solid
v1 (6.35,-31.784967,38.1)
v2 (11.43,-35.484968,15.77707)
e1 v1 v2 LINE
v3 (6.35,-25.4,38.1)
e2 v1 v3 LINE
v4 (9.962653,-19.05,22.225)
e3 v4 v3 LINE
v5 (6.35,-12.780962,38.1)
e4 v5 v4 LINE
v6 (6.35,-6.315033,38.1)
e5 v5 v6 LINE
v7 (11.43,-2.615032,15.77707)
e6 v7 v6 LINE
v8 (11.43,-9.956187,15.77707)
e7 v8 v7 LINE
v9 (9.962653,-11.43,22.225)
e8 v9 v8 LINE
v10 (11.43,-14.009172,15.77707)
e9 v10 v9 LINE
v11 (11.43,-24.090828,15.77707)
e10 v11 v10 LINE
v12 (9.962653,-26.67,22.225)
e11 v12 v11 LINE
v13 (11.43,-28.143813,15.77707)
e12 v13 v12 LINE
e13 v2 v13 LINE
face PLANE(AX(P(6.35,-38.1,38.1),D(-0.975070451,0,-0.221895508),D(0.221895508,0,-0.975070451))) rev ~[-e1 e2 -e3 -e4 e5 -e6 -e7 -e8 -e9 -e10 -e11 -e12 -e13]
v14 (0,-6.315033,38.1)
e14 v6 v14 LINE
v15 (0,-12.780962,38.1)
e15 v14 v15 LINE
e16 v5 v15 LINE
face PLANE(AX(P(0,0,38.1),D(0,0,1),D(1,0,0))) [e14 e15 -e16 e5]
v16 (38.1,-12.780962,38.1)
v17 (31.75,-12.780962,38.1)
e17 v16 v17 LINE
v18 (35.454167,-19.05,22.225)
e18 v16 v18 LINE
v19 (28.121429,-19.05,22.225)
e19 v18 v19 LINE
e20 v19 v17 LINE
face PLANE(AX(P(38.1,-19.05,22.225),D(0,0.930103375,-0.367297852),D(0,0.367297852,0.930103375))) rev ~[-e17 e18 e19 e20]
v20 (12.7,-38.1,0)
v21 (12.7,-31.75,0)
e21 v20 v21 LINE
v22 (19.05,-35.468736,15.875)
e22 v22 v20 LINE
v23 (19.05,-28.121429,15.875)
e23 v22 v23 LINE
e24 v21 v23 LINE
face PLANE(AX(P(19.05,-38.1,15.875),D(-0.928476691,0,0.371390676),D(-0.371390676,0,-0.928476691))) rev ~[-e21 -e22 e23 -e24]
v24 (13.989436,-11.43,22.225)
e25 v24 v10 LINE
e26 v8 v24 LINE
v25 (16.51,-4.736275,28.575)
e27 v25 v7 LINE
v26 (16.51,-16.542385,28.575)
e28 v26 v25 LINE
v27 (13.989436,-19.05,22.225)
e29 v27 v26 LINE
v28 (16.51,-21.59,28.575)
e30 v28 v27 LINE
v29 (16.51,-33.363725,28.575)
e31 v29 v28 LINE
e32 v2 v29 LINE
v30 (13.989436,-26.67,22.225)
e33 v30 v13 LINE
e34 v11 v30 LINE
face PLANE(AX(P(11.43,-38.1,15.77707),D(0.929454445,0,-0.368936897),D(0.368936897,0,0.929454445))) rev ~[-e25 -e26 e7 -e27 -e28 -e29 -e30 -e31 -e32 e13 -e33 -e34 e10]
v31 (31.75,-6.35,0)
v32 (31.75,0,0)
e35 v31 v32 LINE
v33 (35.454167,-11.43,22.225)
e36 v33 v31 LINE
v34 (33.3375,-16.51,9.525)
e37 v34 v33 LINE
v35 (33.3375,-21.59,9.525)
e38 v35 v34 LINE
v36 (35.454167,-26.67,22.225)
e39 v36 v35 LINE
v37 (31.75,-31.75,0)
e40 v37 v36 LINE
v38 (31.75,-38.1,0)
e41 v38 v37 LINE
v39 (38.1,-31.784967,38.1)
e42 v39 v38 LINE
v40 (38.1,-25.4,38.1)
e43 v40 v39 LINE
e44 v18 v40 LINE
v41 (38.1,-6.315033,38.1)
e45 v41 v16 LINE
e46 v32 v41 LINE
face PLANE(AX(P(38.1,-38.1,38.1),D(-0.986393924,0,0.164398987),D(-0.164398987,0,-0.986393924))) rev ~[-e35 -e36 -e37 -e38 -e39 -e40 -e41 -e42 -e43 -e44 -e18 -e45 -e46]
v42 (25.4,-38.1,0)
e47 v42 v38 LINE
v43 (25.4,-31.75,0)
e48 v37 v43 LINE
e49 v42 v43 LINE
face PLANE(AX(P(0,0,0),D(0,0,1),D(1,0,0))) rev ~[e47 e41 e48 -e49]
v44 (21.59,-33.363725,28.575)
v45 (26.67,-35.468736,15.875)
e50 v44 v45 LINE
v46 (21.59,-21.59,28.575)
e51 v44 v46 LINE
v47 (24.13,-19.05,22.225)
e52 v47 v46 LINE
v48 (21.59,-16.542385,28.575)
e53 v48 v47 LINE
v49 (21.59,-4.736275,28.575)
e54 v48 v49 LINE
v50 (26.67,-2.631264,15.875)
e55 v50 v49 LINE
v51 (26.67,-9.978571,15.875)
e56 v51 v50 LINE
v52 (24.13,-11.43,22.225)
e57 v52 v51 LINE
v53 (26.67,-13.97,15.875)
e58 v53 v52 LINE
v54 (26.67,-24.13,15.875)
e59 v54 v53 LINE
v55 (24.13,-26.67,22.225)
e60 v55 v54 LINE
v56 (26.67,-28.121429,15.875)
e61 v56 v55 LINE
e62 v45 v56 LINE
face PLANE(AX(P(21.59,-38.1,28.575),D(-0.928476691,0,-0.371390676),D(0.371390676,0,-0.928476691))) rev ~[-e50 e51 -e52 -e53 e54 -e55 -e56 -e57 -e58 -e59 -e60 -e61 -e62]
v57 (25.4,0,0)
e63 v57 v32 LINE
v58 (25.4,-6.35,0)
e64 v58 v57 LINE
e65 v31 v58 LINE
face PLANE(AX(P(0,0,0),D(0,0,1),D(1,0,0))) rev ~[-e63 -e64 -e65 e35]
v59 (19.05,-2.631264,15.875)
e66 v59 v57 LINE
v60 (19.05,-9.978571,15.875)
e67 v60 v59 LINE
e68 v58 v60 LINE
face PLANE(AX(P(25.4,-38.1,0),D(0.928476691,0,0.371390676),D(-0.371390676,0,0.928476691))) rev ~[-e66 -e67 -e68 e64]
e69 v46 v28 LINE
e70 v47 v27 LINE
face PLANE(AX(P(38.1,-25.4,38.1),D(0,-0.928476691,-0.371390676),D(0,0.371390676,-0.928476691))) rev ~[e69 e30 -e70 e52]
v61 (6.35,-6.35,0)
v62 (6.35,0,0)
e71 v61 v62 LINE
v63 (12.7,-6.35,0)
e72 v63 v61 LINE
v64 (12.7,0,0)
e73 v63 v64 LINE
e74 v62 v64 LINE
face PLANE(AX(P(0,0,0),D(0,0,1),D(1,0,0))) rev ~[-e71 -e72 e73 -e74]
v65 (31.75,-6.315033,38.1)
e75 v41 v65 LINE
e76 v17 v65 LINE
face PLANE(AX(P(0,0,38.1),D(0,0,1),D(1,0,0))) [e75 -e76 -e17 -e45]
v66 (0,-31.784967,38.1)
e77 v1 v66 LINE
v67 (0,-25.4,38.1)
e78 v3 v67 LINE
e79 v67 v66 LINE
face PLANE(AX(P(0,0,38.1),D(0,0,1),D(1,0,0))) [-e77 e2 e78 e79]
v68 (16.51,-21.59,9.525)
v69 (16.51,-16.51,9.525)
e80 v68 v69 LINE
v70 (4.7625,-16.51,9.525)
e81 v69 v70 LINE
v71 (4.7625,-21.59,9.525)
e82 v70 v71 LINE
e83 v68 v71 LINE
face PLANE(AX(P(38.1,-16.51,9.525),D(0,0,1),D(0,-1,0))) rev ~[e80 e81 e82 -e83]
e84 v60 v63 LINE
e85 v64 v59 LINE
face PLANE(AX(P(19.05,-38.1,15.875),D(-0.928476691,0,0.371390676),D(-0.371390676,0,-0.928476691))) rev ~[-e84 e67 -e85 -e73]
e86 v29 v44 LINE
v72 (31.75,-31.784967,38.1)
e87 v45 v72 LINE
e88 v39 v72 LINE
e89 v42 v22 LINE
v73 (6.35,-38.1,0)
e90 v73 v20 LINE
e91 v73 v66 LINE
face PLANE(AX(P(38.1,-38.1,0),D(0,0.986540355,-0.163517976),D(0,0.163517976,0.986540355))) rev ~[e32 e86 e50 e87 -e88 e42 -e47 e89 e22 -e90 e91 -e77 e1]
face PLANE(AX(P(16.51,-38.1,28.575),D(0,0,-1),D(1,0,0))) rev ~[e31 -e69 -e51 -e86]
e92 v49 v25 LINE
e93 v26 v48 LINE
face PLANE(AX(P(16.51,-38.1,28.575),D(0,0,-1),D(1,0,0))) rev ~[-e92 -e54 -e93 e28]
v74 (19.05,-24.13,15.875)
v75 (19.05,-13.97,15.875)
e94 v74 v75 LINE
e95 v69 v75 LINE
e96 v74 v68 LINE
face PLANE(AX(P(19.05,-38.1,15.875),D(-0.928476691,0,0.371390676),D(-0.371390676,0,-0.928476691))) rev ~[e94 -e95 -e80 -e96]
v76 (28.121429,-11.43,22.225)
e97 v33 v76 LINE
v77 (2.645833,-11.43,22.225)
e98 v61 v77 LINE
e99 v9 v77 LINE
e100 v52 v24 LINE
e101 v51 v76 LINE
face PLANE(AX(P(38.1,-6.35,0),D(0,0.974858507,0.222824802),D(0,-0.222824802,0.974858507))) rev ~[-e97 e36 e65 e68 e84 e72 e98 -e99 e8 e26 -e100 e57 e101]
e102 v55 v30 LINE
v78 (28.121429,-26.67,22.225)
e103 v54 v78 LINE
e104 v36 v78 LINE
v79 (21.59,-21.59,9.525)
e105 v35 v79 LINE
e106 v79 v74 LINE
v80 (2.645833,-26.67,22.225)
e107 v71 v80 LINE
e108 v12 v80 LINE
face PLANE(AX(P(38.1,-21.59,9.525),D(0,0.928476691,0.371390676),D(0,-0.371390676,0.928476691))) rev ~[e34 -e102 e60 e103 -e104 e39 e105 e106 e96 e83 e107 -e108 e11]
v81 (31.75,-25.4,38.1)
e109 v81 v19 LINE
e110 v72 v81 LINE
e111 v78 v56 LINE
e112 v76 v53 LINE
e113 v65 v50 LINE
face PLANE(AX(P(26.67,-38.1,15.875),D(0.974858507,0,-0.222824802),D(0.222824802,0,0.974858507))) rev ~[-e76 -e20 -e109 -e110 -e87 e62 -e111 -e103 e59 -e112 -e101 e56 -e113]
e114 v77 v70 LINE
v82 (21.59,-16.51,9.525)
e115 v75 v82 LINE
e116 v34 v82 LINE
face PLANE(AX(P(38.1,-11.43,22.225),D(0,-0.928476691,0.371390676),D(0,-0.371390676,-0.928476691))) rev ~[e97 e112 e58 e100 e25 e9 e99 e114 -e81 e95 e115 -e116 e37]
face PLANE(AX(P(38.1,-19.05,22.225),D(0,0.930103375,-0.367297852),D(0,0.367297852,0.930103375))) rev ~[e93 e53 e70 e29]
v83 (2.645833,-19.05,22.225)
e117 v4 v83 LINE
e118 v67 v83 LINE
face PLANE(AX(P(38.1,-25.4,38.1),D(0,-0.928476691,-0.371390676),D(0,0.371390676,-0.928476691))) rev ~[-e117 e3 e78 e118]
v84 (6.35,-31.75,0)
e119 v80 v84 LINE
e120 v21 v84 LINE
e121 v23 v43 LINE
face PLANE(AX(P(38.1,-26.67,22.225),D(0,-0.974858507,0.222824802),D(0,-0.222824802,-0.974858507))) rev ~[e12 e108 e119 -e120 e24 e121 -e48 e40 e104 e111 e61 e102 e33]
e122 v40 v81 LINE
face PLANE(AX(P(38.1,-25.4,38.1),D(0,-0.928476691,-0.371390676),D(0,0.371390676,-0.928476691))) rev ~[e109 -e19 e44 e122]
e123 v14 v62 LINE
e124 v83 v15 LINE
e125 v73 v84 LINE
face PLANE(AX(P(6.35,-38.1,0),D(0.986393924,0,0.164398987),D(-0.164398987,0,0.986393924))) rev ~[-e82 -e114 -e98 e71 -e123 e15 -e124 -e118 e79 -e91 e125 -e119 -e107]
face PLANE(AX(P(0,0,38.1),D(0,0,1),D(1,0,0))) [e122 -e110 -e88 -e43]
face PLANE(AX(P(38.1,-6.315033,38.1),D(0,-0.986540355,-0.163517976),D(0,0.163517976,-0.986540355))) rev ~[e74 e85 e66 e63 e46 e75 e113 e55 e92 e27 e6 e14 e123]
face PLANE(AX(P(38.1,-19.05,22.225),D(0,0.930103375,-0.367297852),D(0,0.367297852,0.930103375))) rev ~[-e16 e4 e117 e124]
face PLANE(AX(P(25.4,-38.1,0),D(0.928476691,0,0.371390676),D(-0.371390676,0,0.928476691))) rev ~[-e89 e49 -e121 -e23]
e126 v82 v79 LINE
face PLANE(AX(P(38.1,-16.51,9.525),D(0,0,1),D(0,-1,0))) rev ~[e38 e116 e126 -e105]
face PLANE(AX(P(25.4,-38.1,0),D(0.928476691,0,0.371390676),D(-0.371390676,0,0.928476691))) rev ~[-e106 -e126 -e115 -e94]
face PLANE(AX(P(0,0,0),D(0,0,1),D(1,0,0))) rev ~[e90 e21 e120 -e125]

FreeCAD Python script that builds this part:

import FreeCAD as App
import Part
import Sketcher
from FreeCAD import Vector
Q = App.Units.Quantity


def add_polygon(sketch, points):
    """Adds a closed chain of lines whose ends are joined by coincident constraints."""
    first, n = sketch.GeometryCount, len(points)
    for a, b in zip(points, points[1:] + points[:1]):
        sketch.addGeometry(Part.LineSegment(App.Vector(*a, 0), App.Vector(*b, 0)), False)
    for i in range(n):
        sketch.addConstraint(Sketcher.Constraint("Coincident", first + i, 2, first + (i + 1) % n, 1))

doc = App.newDocument("Part")
body = doc.addObject("PartDesign::Body", "Body")

sketch1 = doc.addObject("Sketcher::SketchObject", "Sketch")
body.addObject(sketch1)
sketch1.AttachmentSupport = (doc.XZ_Plane, [""])
sketch1.MapMode = "FlatFace"
add_polygon(sketch1, [(0, 38.1), (0, 0), (38.1, 0), (38.1, 38.1)])
sketch1.addConstraint(Sketcher.Constraint("Vertical", 0))
sketch1.addConstraint(Sketcher.Constraint("Horizontal", 1))
sketch1.addConstraint(Sketcher.Constraint("Vertical", 2))
sketch1.addConstraint(Sketcher.Constraint("Horizontal", 3))
sketch1.addConstraint(Sketcher.Constraint("Coincident", 0, 2, -1, 1))
sketch1.addConstraint(Sketcher.Constraint("Equal", 3, 0))
sketch1.addConstraint(Sketcher.Constraint("DistanceX", 1, 1, 1, 2, Q("1.5 in")))
pad1 = doc.addObject("PartDesign::Pad", "Pad")
body.addObject(pad1)
pad1.Profile = sketch1
pad1.Length = Q("1.5 in")

sketch2 = doc.addObject("Sketcher::SketchObject", "Sketch001")
body.addObject(sketch2)
sketch2.AttachmentSupport = (doc.XZ_Plane, [""])
sketch2.MapMode = "FlatFace"
sketch2.AttachmentOffset = App.Placement(Vector(0, 0, 1.5 * 25.4), App.Rotation())
add_polygon(sketch2, [(0, 38.1), (0, 0), (6.35, 0)])
add_polygon(sketch2, [(31.75, 38.1), (6.35, 38.1), (11.43, 15.77707), (16.51, 28.575), (21.59, 28.575), (26.67, 15.875)])
add_polygon(sketch2, [(38.1, 0), (38.1, 38.1), (31.75, 0)])
add_polygon(sketch2, [(19.05, 15.875), (12.7, 0), (25.4, 0)])
sketch2.addConstraint(Sketcher.Constraint("Vertical", 0))
sketch2.addConstraint(Sketcher.Constraint("Horizontal", 1))
sketch2.addConstraint(Sketcher.Constraint("Horizontal", 3))
sketch2.addConstraint(Sketcher.Constraint("Horizontal", 6))
sketch2.addConstraint(Sketcher.Constraint("Vertical", 9))
sketch2.addConstraint(Sketcher.Constraint("Horizontal", 11))
sketch2.addConstraint(Sketcher.Constraint("Horizontal", 13))
sketch2.addConstraint(Sketcher.Constraint("Coincident", 0, 2, -1, 1))
sketch2.addConstraint(Sketcher.Constraint("PointOnObject", 10, 2, -1))
sketch2.addConstraint(Sketcher.Constraint("PointOnObject", 12, 2, -1))
sketch2.addConstraint(Sketcher.Constraint("Parallel", 7, 14))
sketch2.addConstraint(Sketcher.Constraint("Horizontal", 2, 2, 3, 2))
sketch2.addConstraint(Sketcher.Constraint("Horizontal", 8, 2, 9, 2))
sketch2.addConstraint(Sketcher.Constraint("Horizontal", 7, 2, 14, 2))
sketch2.addConstraint(Sketcher.Constraint("Vertical", 1, 2, 3, 2))
sketch2.addConstraint(Sketcher.Constraint("Vertical", 8, 2, 10, 2))
sketch2.addConstraint(Sketcher.Constraint("Equal", 1, 11))
sketch2.addConstraint(Sketcher.Constraint("Equal", 12, 14))
sketch2.addConstraint(Sketcher.Constraint("DistanceX", 3, 2, 3, 1, Q("1 in")))
sketch2.addConstraint(Sketcher.Constraint("DistanceX", 6, 1, 6, 2, Q("0.2 in")))
sketch2.addConstraint(Sketcher.Constraint("DistanceX", 13, 1, 13, 2, Q("0.5 in")))
sketch2.addConstraint(Sketcher.Constraint("DistanceY", 0, 2, 0, 1, Q("1.5 in")))
sketch2.addConstraint(Sketcher.Constraint("DistanceX", -1, 1, 13, 2, Q("1 in")))
sketch2.addConstraint(Sketcher.Constraint("DistanceX", 1, 1, 1, 2, Q("0.25 in")))
sketch2.addConstraint(Sketcher.Constraint("DistanceX", 1, 2, 4, 2, Q("0.2 in")))
sketch2.addConstraint(Sketcher.Constraint("DistanceX", 4, 2, 5, 2, Q("0.2 in")))
sketch2.addConstraint(Sketcher.Constraint("DistanceX", 6, 2, 7, 2, Q("0.2 in")))
sketch2.addConstraint(Sketcher.Constraint("DistanceY", 7, 2, 6, 2, Q("0.5 in")))
sketch2.addConstraint(Sketcher.Constraint("Distance", 4, 22.893659))
pocket1 = doc.addObject("PartDesign::Pocket", "Pocket")
body.addObject(pocket1)
pocket1.Profile = sketch2
pocket1.Length = Q("1.5 in")

sketch3 = doc.addObject("Sketcher::SketchObject", "Sketch002")
body.addObject(sketch3)
sketch3.AttachmentSupport = (doc.YZ_Plane, [""])
sketch3.MapMode = "FlatFace"
sketch3.AttachmentOffset = App.Placement(Vector(0, 0, 1.5 * 25.4), App.Rotation())
add_polygon(sketch3, [(-38.1, 38.1), (-38.1, 0), (-31.784967, 38.1)])
add_polygon(sketch3, [(-26.67, 22.225), (-31.75, 0), (-6.35, 0), (-11.43, 22.225), (-16.51, 9.525), (-21.59, 9.525)])
add_polygon(sketch3, [(-12.780962, 38.1), (-25.4, 38.1), (-19.05, 22.225)])
add_polygon(sketch3, [(-6.315033, 38.1), (0, 0), (0, 38.1)])
sketch3.addConstraint(Sketcher.Constraint("Vertical", 0))
sketch3.addConstraint(Sketcher.Constraint("Horizontal", 2))
sketch3.addConstraint(Sketcher.Constraint("Horizontal", 4))
sketch3.addConstraint(Sketcher.Constraint("Horizontal", 7))
sketch3.addConstraint(Sketcher.Constraint("Horizontal", 9))
sketch3.addConstraint(Sketcher.Constraint("Vertical", 13))
sketch3.addConstraint(Sketcher.Constraint("Horizontal", 14))
sketch3.addConstraint(Sketcher.Constraint("Coincident", 12, 2, -1, 1))
sketch3.addConstraint(Sketcher.Constraint("PointOnObject", 0, 2, -1))
sketch3.addConstraint(Sketcher.Constraint("PointOnObject", 3, 2, -1))
sketch3.addConstraint(Sketcher.Constraint("Parallel", 8, 10))
sketch3.addConstraint(Sketcher.Constraint("Horizontal", 5, 2, 8, 2))
sketch3.addConstraint(Sketcher.Constraint("Horizontal", 2, 2, 9, 2))
sketch3.addConstraint(Sketcher.Constraint("Horizontal", 8, 2, 10, 2))
sketch3.addConstraint(Sketcher.Constraint("Horizontal", 11, 2, 13, 2))
sketch3.addConstraint(Sketcher.Constraint("Equal", 2, 14))
sketch3.addConstraint(Sketcher.Constraint("Equal", 3, 5))
sketch3.addConstraint(Sketcher.Constraint("Equal", 6, 8))
sketch3.addConstraint(Sketcher.Constraint("DistanceX", 4, 1, 4, 2, Q("1 in")))
sketch3.addConstraint(Sketcher.Constraint("DistanceX", 7, 2, 7, 1, Q("0.2 in")))
sketch3.addConstraint(Sketcher.Constraint("DistanceY", 0, 2, 0, 1, Q("1.5 in")))
sketch3.addConstraint(Sketcher.Constraint("DistanceX", 9, 2, -1, 1, Q("1 in")))
sketch3.addConstraint(Sketcher.Constraint("DistanceX", 0, 2, -1, 1, Q("1.5 in")))
sketch3.addConstraint(Sketcher.Constraint("DistanceX", 5, 2, 4, 2, Q("0.2 in")))
sketch3.addConstraint(Sketcher.Constraint("DistanceY", 6, 2, 5, 2, Q("0.5 in")))
sketch3.addConstraint(Sketcher.Constraint("DistanceX", 10, 2, 5, 2, Q("0.3 in")))
sketch3.addConstraint(Sketcher.Constraint("DistanceX", 3, 2, -1, 1, Q("1.25 in")))
sketch3.addConstraint(Sketcher.Constraint("Distance", 1, 38.619809))
sketch3.addConstraint(Sketcher.Constraint("DistanceX", 9, 2, 9, 1, 12.619038))
pocket2 = doc.addObject("PartDesign::Pocket", "Pocket001")
body.addObject(pocket2)
pocket2.Profile = sketch3
pocket2.Length = Q("1.5 in")

doc.recompute()
